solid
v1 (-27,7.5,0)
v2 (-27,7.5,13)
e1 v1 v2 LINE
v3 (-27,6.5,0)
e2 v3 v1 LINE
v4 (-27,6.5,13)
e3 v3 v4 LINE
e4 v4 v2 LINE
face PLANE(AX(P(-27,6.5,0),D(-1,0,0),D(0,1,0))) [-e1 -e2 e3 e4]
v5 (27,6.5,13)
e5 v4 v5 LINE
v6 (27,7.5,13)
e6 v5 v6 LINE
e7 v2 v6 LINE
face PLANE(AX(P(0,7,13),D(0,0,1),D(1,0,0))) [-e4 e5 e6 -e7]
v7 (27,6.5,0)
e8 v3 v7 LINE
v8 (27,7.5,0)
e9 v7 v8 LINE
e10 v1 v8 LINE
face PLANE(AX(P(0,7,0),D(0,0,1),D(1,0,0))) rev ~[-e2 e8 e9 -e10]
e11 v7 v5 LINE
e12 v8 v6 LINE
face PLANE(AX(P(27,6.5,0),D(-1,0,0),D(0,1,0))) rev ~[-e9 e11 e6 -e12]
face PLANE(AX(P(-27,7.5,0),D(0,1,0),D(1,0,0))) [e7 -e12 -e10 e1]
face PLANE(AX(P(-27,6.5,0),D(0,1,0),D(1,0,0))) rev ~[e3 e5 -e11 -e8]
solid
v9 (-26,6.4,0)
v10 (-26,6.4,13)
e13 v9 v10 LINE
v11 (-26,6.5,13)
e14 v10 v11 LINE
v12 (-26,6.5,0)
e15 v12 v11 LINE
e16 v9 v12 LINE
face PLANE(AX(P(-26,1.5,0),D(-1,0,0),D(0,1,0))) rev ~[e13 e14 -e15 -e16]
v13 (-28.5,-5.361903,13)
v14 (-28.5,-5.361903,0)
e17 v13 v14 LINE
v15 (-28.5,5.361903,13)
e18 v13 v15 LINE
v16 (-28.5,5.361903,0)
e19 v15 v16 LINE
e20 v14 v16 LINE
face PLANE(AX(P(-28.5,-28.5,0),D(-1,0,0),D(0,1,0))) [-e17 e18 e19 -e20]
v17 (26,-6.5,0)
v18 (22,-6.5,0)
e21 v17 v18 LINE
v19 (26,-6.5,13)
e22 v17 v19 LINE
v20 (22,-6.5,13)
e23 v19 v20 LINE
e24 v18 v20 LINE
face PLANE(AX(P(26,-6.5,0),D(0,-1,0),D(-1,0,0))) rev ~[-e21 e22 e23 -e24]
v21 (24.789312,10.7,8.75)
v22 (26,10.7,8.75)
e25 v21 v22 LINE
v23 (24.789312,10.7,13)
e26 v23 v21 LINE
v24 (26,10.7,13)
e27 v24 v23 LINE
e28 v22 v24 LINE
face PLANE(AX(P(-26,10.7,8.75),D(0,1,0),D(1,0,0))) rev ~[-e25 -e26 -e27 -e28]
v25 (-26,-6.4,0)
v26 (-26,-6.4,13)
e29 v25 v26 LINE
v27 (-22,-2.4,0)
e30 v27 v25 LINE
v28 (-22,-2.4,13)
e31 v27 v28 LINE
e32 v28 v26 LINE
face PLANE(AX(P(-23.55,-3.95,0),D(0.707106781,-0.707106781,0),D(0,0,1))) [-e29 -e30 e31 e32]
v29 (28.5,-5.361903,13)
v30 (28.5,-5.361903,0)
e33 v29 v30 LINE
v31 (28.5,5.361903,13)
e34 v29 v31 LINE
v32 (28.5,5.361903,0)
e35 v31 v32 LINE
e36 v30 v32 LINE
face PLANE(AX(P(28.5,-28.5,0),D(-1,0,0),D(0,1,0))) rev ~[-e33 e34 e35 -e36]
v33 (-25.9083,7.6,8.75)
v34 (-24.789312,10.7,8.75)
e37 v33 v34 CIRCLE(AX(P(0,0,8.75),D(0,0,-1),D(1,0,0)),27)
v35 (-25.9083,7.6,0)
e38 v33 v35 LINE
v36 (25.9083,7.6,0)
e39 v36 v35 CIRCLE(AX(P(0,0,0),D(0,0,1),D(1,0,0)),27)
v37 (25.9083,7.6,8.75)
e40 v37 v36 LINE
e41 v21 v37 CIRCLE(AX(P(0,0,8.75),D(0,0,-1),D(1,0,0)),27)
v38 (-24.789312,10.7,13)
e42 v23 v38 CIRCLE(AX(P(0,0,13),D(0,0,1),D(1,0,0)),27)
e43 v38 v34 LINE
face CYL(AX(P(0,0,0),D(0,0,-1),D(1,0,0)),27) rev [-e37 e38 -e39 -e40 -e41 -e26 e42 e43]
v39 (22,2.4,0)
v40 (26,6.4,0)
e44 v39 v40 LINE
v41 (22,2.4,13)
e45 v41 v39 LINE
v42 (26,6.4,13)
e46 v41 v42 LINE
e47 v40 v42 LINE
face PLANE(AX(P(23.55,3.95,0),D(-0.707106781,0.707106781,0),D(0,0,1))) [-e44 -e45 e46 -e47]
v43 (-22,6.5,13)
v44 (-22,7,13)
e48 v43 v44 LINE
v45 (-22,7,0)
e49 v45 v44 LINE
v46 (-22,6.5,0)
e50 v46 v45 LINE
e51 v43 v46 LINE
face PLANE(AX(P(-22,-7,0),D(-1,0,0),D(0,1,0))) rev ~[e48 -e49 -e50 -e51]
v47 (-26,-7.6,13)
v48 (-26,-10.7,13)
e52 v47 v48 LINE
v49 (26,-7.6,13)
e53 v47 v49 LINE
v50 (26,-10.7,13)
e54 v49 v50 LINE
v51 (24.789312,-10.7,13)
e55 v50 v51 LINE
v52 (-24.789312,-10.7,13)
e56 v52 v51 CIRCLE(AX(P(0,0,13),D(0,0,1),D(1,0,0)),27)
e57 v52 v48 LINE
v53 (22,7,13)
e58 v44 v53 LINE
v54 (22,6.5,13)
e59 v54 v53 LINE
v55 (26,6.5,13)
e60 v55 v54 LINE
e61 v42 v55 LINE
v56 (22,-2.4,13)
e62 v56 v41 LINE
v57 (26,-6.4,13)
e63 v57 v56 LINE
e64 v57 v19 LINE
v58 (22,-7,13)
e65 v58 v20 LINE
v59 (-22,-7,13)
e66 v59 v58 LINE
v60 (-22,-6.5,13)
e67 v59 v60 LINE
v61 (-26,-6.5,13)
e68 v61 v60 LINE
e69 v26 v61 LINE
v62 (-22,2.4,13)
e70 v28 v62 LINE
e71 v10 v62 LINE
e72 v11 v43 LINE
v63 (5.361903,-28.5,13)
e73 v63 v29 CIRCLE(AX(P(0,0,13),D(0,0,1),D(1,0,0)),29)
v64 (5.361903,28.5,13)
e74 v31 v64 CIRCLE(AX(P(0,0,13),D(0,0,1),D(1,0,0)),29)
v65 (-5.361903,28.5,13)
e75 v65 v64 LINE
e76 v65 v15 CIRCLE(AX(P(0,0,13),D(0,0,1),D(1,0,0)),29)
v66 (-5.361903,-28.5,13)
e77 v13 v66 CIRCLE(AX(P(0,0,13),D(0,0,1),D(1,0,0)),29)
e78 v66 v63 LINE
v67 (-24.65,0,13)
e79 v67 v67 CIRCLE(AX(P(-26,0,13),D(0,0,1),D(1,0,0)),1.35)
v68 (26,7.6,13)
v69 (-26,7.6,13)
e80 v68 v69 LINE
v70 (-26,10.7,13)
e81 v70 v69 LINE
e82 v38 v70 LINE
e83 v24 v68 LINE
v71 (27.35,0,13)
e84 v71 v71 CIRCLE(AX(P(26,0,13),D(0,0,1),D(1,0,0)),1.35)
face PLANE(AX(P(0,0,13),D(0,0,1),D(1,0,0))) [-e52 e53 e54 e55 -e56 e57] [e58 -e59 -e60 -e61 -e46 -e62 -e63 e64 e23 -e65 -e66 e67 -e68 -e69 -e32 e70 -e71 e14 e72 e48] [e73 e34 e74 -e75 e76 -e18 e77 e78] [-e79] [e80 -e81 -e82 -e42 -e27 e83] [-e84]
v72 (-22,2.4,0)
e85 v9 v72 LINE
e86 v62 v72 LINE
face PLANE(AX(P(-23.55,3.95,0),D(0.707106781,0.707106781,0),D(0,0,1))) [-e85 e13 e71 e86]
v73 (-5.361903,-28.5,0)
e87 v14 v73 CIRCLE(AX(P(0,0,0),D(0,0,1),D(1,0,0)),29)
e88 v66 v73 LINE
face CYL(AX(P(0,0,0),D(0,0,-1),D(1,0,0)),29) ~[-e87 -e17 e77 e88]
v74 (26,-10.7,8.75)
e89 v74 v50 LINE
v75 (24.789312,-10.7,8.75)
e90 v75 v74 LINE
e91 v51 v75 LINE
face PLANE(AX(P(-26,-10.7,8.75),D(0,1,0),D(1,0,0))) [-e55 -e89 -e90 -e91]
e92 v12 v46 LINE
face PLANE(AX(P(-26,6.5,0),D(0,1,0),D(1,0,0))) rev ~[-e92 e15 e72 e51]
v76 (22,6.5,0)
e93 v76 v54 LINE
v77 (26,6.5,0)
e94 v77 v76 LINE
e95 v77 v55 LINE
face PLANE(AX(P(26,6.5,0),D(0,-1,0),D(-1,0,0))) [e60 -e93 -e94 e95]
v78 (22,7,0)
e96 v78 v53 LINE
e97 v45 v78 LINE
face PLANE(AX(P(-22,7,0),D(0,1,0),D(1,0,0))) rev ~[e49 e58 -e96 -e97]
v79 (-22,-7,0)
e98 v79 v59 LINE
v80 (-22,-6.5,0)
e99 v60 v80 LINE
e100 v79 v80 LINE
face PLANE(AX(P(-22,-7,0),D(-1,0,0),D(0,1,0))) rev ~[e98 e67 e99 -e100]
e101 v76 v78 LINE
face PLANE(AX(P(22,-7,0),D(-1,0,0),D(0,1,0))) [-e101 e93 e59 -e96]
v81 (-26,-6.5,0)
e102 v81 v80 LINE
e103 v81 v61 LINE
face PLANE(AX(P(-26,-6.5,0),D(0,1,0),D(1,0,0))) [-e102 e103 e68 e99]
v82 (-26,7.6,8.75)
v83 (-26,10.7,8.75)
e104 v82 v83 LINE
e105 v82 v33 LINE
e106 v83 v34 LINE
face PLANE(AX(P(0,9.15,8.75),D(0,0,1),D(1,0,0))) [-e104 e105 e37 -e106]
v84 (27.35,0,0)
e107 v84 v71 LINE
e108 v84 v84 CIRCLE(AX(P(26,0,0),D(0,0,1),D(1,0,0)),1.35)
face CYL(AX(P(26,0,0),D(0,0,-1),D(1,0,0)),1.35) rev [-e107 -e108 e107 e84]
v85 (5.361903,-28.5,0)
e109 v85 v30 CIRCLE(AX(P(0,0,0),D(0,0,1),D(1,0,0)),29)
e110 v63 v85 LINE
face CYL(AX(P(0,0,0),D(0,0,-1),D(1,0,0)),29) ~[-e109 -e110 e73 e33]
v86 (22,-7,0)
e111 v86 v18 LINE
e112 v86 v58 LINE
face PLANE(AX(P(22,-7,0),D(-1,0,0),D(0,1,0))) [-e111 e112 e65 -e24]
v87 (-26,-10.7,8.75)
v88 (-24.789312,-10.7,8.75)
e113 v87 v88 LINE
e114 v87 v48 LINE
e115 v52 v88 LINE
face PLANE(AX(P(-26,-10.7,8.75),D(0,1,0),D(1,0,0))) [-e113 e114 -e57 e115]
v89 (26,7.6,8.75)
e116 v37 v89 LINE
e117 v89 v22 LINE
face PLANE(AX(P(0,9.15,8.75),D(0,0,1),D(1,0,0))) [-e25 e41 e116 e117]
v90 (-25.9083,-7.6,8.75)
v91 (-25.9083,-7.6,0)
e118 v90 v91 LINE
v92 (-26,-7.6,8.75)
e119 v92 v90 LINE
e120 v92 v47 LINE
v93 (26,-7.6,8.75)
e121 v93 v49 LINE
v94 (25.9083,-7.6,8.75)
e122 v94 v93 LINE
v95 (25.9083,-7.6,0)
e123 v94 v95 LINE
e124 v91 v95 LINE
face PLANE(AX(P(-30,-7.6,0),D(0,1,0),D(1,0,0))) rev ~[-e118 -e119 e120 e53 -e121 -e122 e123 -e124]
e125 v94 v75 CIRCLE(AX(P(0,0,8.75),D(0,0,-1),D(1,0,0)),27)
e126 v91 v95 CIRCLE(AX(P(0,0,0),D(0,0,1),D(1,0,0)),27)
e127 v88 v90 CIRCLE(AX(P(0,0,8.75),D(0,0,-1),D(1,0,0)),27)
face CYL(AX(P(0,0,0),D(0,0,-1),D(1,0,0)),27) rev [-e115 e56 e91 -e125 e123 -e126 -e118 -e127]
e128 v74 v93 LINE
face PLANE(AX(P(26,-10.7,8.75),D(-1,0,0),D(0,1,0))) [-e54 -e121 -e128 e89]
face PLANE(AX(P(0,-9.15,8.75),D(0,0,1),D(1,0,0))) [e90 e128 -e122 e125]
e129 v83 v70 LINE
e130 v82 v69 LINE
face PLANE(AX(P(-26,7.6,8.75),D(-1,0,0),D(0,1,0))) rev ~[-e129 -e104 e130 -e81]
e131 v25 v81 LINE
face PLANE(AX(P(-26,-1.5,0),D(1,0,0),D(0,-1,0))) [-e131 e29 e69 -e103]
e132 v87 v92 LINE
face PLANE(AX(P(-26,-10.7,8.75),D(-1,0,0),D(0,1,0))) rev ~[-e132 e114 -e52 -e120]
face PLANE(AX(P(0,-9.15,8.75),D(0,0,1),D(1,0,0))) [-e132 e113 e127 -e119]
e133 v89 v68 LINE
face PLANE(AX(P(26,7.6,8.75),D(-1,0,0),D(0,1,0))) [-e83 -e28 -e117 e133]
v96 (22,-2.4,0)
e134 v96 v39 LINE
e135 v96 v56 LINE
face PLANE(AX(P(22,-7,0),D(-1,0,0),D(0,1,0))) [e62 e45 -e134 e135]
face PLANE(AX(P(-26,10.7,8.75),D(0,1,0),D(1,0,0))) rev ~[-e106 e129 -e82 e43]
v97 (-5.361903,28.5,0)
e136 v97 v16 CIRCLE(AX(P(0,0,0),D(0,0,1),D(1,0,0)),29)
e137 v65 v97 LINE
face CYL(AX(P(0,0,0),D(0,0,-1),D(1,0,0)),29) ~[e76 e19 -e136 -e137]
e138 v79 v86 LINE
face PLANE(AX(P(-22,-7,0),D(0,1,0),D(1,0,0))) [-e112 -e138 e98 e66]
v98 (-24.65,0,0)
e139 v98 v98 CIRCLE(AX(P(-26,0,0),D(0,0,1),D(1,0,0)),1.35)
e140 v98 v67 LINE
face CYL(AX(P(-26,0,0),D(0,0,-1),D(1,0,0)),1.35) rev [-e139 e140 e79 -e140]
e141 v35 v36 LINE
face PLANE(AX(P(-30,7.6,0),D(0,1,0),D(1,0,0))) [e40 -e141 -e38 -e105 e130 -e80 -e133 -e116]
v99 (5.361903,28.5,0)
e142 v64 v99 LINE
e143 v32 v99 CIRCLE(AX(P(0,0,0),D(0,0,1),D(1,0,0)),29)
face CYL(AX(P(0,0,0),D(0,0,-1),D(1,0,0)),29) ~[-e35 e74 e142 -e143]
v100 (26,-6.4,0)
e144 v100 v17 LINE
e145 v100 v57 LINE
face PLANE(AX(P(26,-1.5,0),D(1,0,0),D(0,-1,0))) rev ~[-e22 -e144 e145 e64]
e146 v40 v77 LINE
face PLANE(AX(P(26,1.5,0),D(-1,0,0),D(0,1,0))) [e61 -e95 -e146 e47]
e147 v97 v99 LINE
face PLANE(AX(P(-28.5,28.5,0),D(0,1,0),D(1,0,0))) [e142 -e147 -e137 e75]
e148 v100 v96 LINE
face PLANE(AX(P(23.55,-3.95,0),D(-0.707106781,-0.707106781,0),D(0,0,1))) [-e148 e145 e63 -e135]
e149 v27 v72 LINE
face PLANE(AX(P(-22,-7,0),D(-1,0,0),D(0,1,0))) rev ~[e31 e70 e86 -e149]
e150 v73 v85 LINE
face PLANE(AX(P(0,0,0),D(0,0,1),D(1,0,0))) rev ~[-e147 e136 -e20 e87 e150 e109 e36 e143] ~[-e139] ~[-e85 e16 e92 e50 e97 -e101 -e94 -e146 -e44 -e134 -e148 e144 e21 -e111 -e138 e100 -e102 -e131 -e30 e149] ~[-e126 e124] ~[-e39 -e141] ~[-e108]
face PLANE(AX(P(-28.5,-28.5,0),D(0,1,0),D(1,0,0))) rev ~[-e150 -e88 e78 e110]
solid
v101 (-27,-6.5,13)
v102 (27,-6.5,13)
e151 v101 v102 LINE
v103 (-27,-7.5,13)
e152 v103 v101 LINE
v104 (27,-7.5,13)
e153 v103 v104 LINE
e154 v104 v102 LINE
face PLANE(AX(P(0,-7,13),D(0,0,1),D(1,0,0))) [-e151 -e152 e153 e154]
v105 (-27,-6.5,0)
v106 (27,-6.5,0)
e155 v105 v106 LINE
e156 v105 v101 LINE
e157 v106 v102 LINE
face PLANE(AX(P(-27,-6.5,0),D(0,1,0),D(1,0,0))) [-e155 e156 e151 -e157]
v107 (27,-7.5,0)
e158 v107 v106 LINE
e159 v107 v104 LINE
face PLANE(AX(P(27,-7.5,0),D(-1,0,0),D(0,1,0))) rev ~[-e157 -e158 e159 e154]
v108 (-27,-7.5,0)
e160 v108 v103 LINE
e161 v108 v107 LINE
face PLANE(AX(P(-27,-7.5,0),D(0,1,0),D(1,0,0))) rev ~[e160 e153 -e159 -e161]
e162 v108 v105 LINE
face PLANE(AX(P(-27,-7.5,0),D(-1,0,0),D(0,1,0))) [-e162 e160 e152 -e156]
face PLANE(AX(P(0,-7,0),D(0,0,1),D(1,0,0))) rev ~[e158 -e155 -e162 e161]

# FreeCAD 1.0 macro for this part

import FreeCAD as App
import Part
import Sketcher


def edges_at(feature, points):
    """Names of the edges that pass closest to the given points."""
    edges = feature.Shape.Edges
    near = lambda p: min(range(len(edges)), key=lambda i: edges[i].distToShape(Part.Vertex(*p))[0])
    return sorted({f"Edge{near(p) + 1}" for p in points})

doc = App.newDocument("Part")
body = doc.addObject("PartDesign::Body", "Body")

# Sketch on XY plane
sketch1 = body.newObject("Sketcher::SketchObject", "Sketch")
sketch1.AttachmentSupport = (doc.getObject("XY_Plane"), [""])
sketch1.MapMode = "FlatFace"
sketch1.addGeometry(Part.LineSegment(App.Vector(-27, 7.5, 0), App.Vector(-27, 6.5, 0)), False)
sketch1.addGeometry(Part.LineSegment(App.Vector(-27, 6.5, 0), App.Vector(27, 6.5, 0)), False)
sketch1.addGeometry(Part.LineSegment(App.Vector(27, 6.5, 0), App.Vector(27, 7.5, 0)), False)
sketch1.addGeometry(Part.LineSegment(App.Vector(27, 7.5, 0), App.Vector(-27, 7.5, 0)), False)
sketch1.addConstraint(Sketcher.Constraint("Coincident", 0, 2, 1, 1))
sketch1.addConstraint(Sketcher.Constraint("Coincident", 1, 2, 2, 1))
sketch1.addConstraint(Sketcher.Constraint("Coincident", 2, 2, 3, 1))
sketch1.addConstraint(Sketcher.Constraint("Coincident", 3, 2, 0, 1))
sketch1.addConstraint(Sketcher.Constraint("Vertical", 0))
sketch1.addConstraint(Sketcher.Constraint("Horizontal", 1))
sketch1.addConstraint(Sketcher.Constraint("Vertical", 2))
sketch1.addConstraint(Sketcher.Constraint("Horizontal", 3))
sketch1.addConstraint(Sketcher.Constraint("DistanceX", 1, 1, 1, 2, 54.0))
sketch1.addConstraint(Sketcher.Constraint("DistanceY", 0, 2, 0, 1, 1.0))
sketch1.addConstraint(Sketcher.Constraint("DistanceX", 0, 2, -1, 1, 27.0))
sketch1.addConstraint(Sketcher.Constraint("DistanceY", -1, 1, 0, 2, 6.5))
pad1 = body.newObject("PartDesign::Pad", "Pad")
pad1.Profile = sketch1
pad1.Length = 13
body2 = doc.addObject("PartDesign::Body", "Body001")

# Sketch on XY plane
sketch2 = body2.newObject("Sketcher::SketchObject", "Sketch001")
sketch2.AttachmentSupport = (doc.getObject("XY_Plane001"), [""])
sketch2.MapMode = "FlatFace"
sketch2.addGeometry(Part.LineSegment(App.Vector(-27, -6.5, 0), App.Vector(-27, -7.5, 0)), False)
sketch2.addGeometry(Part.LineSegment(App.Vector(-27, -7.5, 0), App.Vector(27, -7.5, 0)), False)
sketch2.addGeometry(Part.LineSegment(App.Vector(27, -7.5, 0), App.Vector(27, -6.5, 0)), False)
sketch2.addGeometry(Part.LineSegment(App.Vector(27, -6.5, 0), App.Vector(-27, -6.5, 0)), False)
sketch2.addConstraint(Sketcher.Constraint("Coincident", 0, 2, 1, 1))
sketch2.addConstraint(Sketcher.Constraint("Coincident", 1, 2, 2, 1))
sketch2.addConstraint(Sketcher.Constraint("Coincident", 2, 2, 3, 1))
sketch2.addConstraint(Sketcher.Constraint("Coincident", 3, 2, 0, 1))
sketch2.addConstraint(Sketcher.Constraint("Vertical", 0))
sketch2.addConstraint(Sketcher.Constraint("Horizontal", 1))
sketch2.addConstraint(Sketcher.Constraint("Vertical", 2))
sketch2.addConstraint(Sketcher.Constraint("Horizontal", 3))
sketch2.addConstraint(Sketcher.Constraint("DistanceX", 1, 1, 1, 2, 54.0))
sketch2.addConstraint(Sketcher.Constraint("DistanceY", 0, 2, 0, 1, 1.0))
sketch2.addConstraint(Sketcher.Constraint("DistanceX", 0, 2, -1, 1, 27.0))
sketch2.addConstraint(Sketcher.Constraint("DistanceY", 0, 2, -1, 1, 7.5))
pad2 = body2.newObject("PartDesign::Pad", "Pad001")
pad2.Profile = sketch2
pad2.Length = 13
body3 = doc.addObject("PartDesign::Body", "Body002")

# Sketch on XY plane
sketch3 = body3.newObject("Sketcher::SketchObject", "Sketch002")
sketch3.AttachmentSupport = (doc.getObject("XY_Plane002"), [""])
sketch3.MapMode = "FlatFace"
sketch3.addGeometry(Part.LineSegment(App.Vector(0, 5, 0), App.Vector(0, 0, 0)), False)
sketch3.addGeometry(Part.LineSegment(App.Vector(0, 0, 0), App.Vector(5, 0, 0)), False)
sketch3.addGeometry(Part.LineSegment(App.Vector(5, 0, 0), App.Vector(5, 5, 0)), False)
sketch3.addGeometry(Part.LineSegment(App.Vector(5, 5, 0), App.Vector(0, 5, 0)), False)
sketch3.addConstraint(Sketcher.Constraint("Coincident", 0, 2, 1, 1))
sketch3.addConstraint(Sketcher.Constraint("Coincident", 1, 2, 2, 1))
sketch3.addConstraint(Sketcher.Constraint("Coincident", 2, 2, 3, 1))
sketch3.addConstraint(Sketcher.Constraint("Coincident", 3, 2, 0, 1))
sketch3.addConstraint(Sketcher.Constraint("Vertical", 0))
sketch3.addConstraint(Sketcher.Constraint("Horizontal", 1))
sketch3.addConstraint(Sketcher.Constraint("Vertical", 2))
sketch3.addConstraint(Sketcher.Constraint("Horizontal", 3))
sketch3.addConstraint(Sketcher.Constraint("Coincident", 0, 2, -1, 1))
sketch3.addConstraint(Sketcher.Constraint("Equal", 3, 0))
sketch3.addConstraint(Sketcher.Constraint("DistanceX", 1, 1, 1, 2, 5.0))
pad3 = body3.newObject("PartDesign::Pad", "Pad002")
pad3.Profile = sketch3
pad3.Length = 13
doc.recompute()

chamfer = body3.newObject("PartDesign::Chamfer", "Chamfer")
chamfer.Base = (pad3, edges_at(pad3, [(0, 0, 6.5)]))
chamfer.Size = 4.9
body4 = doc.addObject("PartDesign::Body", "Body003")
doc.recompute()

body3.Placement = App.Placement(App.Vector(-26, -1.5, 0), App.Rotation(App.Vector(0, 0, 1), 270))
boolean = body4.newObject("PartDesign::Boolean", "Boolean")
boolean.Type = "Fuse"
boolean.addObjects([body3])
body5 = doc.addObject("PartDesign::Body", "Body004")

# Sketch on XY plane
sketch4 = body5.newObject("Sketcher::SketchObject", "Sketch003")
sketch4.AttachmentSupport = (doc.getObject("XY_Plane004"), [""])
sketch4.MapMode = "FlatFace"
sketch4.addGeometry(Part.LineSegment(App.Vector(0, 5, 0), App.Vector(0, 0, 0)), False)
sketch4.addGeometry(Part.LineSegment(App.Vector(0, 0, 0), App.Vector(5, 0, 0)), False)
sketch4.addGeometry(Part.LineSegment(App.Vector(5, 0, 0), App.Vector(5, 5, 0)), False)
sketch4.addGeometry(Part.LineSegment(App.Vector(5, 5, 0), App.Vector(0, 5, 0)), False)
sketch4.addConstraint(Sketcher.Constraint("Coincident", 0, 2, 1, 1))
sketch4.addConstraint(Sketcher.Constraint("Coincident", 1, 2, 2, 1))
sketch4.addConstraint(Sketcher.Constraint("Coincident", 2, 2, 3, 1))
sketch4.addConstraint(Sketcher.Constraint("Coincident", 3, 2, 0, 1))
sketch4.addConstraint(Sketcher.Constraint("Vertical", 0))
sketch4.addConstraint(Sketcher.Constraint("Horizontal", 1))
sketch4.addConstraint(Sketcher.Constraint("Vertical", 2))
sketch4.addConstraint(Sketcher.Constraint("Horizontal", 3))
sketch4.addConstraint(Sketcher.Constraint("Coincident", 0, 2, -1, 1))
sketch4.addConstraint(Sketcher.Constraint("Equal", 3, 0))
sketch4.addConstraint(Sketcher.Constraint("DistanceX", 1, 1, 1, 2, 5.0))
pad4 = body5.newObject("PartDesign::Pad", "Pad003")
pad4.Profile = sketch4
pad4.Length = 13
doc.recompute()

chamfer2 = body5.newObject("PartDesign::Chamfer", "Chamfer001")
chamfer2.Base = (pad4, edges_at(pad4, [(0, 0, 6.5)]))
chamfer2.Size = 4.9
body6 = doc.addObject("PartDesign::Body", "Body005")
doc.recompute()

body5.Placement = App.Placement(App.Vector(26, -1.5, 0), App.Rotation(App.Vector(0, 0, 1), 180))
boolean2 = body6.newObject("PartDesign::Boolean", "Boolean001")
boolean2.Type = "Fuse"
boolean2.addObjects([body5])
body7 = doc.addObject("PartDesign::Body", "Body006")

# Sketch on XY plane
sketch5 = body7.newObject("Sketcher::SketchObject", "Sketch004")
sketch5.AttachmentSupport = (doc.getObject("XY_Plane006"), [""])
sketch5.MapMode = "FlatFace"
sketch5.addGeometry(Part.LineSegment(App.Vector(0, 5, 0), App.Vector(0, 0, 0)), False)
sketch5.addGeometry(Part.LineSegment(App.Vector(0, 0, 0), App.Vector(5, 0, 0)), False)
sketch5.addGeometry(Part.LineSegment(App.Vector(5, 0, 0), App.Vector(5, 5, 0)), False)
sketch5.addGeometry(Part.LineSegment(App.Vector(5, 5, 0), App.Vector(0, 5, 0)), False)
sketch5.addConstraint(Sketcher.Constraint("Coincident", 0, 2, 1, 1))
sketch5.addConstraint(Sketcher.Constraint("Coincident", 1, 2, 2, 1))
sketch5.addConstraint(Sketcher.Constraint("Coincident", 2, 2, 3, 1))
sketch5.addConstraint(Sketcher.Constraint("Coincident", 3, 2, 0, 1))
sketch5.addConstraint(Sketcher.Constraint("Vertical", 0))
sketch5.addConstraint(Sketcher.Constraint("Horizontal", 1))
sketch5.addConstraint(Sketcher.Constraint("Vertical", 2))
sketch5.addConstraint(Sketcher.Constraint("Horizontal", 3))
sketch5.addConstraint(Sketcher.Constraint("Coincident", 0, 2, -1, 1))
sketch5.addConstraint(Sketcher.Constraint("Equal", 3, 0))
sketch5.addConstraint(Sketcher.Constraint("DistanceX", 1, 1, 1, 2, 5.0))
pad5 = body7.newObject("PartDesign::Pad", "Pad004")
pad5.Profile = sketch5
pad5.Length = 13
doc.recompute()

chamfer3 = body7.newObject("PartDesign::Chamfer", "Chamfer002")
chamfer3.Base = (pad5, edges_at(pad5, [(0, 0, 6.5)]))
chamfer3.Size = 4.9
body8 = doc.addObject("PartDesign::Body", "Body007")
doc.recompute()

body7.Placement = App.Placement(App.Vector(26, 1.5, 0), App.Rotation(App.Vector(0, 0, 1), 90))
boolean3 = body8.newObject("PartDesign::Boolean", "Boolean002")
boolean3.Type = "Fuse"
boolean3.addObjects([body7])
body9 = doc.addObject("PartDesign::Body", "Body008")

# Sketch on XY plane
sketch6 = body9.newObject("Sketcher::SketchObject", "Sketch005")
sketch6.AttachmentSupport = (doc.getObject("XY_Plane008"), [""])
sketch6.MapMode = "FlatFace"
sketch6.addGeometry(Part.LineSegment(App.Vector(0, 5, 0), App.Vector(0, 0, 0)), False)
sketch6.addGeometry(Part.LineSegment(App.Vector(0, 0, 0), App.Vector(5, 0, 0)), False)
sketch6.addGeometry(Part.LineSegment(App.Vector(5, 0, 0), App.Vector(5, 5, 0)), False)
sketch6.addGeometry(Part.LineSegment(App.Vector(5, 5, 0), App.Vector(0, 5, 0)), False)
sketch6.addConstraint(Sketcher.Constraint("Coincident", 0, 2, 1, 1))
sketch6.addConstraint(Sketcher.Constraint("Coincident", 1, 2, 2, 1))
sketch6.addConstraint(Sketcher.Constraint("Coincident", 2, 2, 3, 1))
sketch6.addConstraint(Sketcher.Constraint("Coincident", 3, 2, 0, 1))
sketch6.addConstraint(Sketcher.Constraint("Vertical", 0))
sketch6.addConstraint(Sketcher.Constraint("Horizontal", 1))
sketch6.addConstraint(Sketcher.Constraint("Vertical", 2))
sketch6.addConstraint(Sketcher.Constraint("Horizontal", 3))
sketch6.addConstraint(Sketcher.Constraint("Coincident", 0, 2, -1, 1))
sketch6.addConstraint(Sketcher.Constraint("Equal", 3, 0))
sketch6.addConstraint(Sketcher.Constraint("DistanceX", 1, 1, 1, 2, 5.0))
pad6 = body9.newObject("PartDesign::Pad", "Pad005")
pad6.Profile = sketch6
pad6.Length = 13
doc.recompute()

chamfer4 = body9.newObject("PartDesign::Chamfer", "Chamfer003")
chamfer4.Base = (pad6, edges_at(pad6, [(0, 0, 6.5)]))
chamfer4.Size = 4.9
body10 = doc.addObject("PartDesign::Body", "Body009")
doc.recompute()

body9.Placement = App.Placement(App.Vector(-26, 1.5, 0), App.Rotation(App.Vector(0, 0, 1), 0))
boolean4 = body10.newObject("PartDesign::Boolean", "Boolean003")
boolean4.Type = "Fuse"
boolean4.addObjects([body9])
body11 = doc.addObject("PartDesign::Body", "Body010")

# Sketch on XY plane
sketch7 = body11.newObject("Sketcher::SketchObject", "Sketch006")
sketch7.AttachmentSupport = (doc.getObject("XY_Plane010"), [""])
sketch7.MapMode = "FlatFace"
sketch7.addGeometry(Part.LineSegment(App.Vector(-22, 7, 0), App.Vector(-22, -7, 0)), False)
sketch7.addGeometry(Part.LineSegment(App.Vector(-22, -7, 0), App.Vector(22, -7, 0)), False)
sketch7.addGeometry(Part.LineSegment(App.Vector(22, -7, 0), App.Vector(22, 7, 0)), False)
sketch7.addGeometry(Part.LineSegment(App.Vector(22, 7, 0), App.Vector(-22, 7, 0)), False)
sketch7.addConstraint(Sketcher.Constraint("Coincident", 0, 2, 1, 1))
sketch7.addConstraint(Sketcher.Constraint("Coincident", 1, 2, 2, 1))
sketch7.addConstraint(Sketcher.Constraint("Coincident", 2, 2, 3, 1))
sketch7.addConstraint(Sketcher.Constraint("Coincident", 3, 2, 0, 1))
sketch7.addConstraint(Sketcher.Constraint("Vertical", 0))
sketch7.addConstraint(Sketcher.Constraint("Horizontal", 1))
sketch7.addConstraint(Sketcher.Constraint("Vertical", 2))
sketch7.addConstraint(Sketcher.Constraint("Horizontal", 3))
sketch7.addConstraint(Sketcher.Constraint("Symmetric", 0, 2, 2, 2, -1, 1))
sketch7.addConstraint(Sketcher.Constraint("DistanceX", 1, 1, 1, 2, 44.0))
sketch7.addConstraint(Sketcher.Constraint("DistanceY", 0, 2, 0, 1, 14.0))
pad7 = body11.newObject("PartDesign::Pad", "Pad006")
pad7.Profile = sketch7
pad7.Length = 13
body12 = doc.addObject("PartDesign::Body", "Body011")

# Sketch on XY plane
sketch8 = body12.newObject("Sketcher::SketchObject", "Sketch007")
sketch8.AttachmentSupport = (doc.getObject("XY_Plane011"), [""])
sketch8.MapMode = "FlatFace"
sketch8.AttachmentOffset = App.Placement(App.Vector(0, 0, 8.75), App.Rotation())
sketch8.addGeometry(Part.LineSegment(App.Vector(-26, -7.6, 0), App.Vector(-26, -10.7, 0)), False)
sketch8.addGeometry(Part.LineSegment(App.Vector(-26, -10.7, 0), App.Vector(26, -10.7, 0)), False)
sketch8.addGeometry(Part.LineSegment(App.Vector(26, -10.7, 0), App.Vector(26, -7.6, 0)), False)
sketch8.addGeometry(Part.LineSegment(App.Vector(26, -7.6, 0), App.Vector(-26, -7.6, 0)), False)
sketch8.addConstraint(Sketcher.Constraint("Coincident", 0, 2, 1, 1))
sketch8.addConstraint(Sketcher.Constraint("Coincident", 1, 2, 2, 1))
sketch8.addConstraint(Sketcher.Constraint("Coincident", 2, 2, 3, 1))
sketch8.addConstraint(Sketcher.Constraint("Coincident", 3, 2, 0, 1))
sketch8.addConstraint(Sketcher.Constraint("Vertical", 0))
sketch8.addConstraint(Sketcher.Constraint("Horizontal", 1))
sketch8.addConstraint(Sketcher.Constraint("Vertical", 2))
sketch8.addConstraint(Sketcher.Constraint("Horizontal", 3))
sketch8.addConstraint(Sketcher.Constraint("DistanceX", 1, 1, 1, 2, 52.0))
sketch8.addConstraint(Sketcher.Constraint("DistanceY", 0, 2, 0, 1, 3.1))
sketch8.addConstraint(Sketcher.Constraint("DistanceX", 0, 2, -1, 1, 26.0))
sketch8.addConstraint(Sketcher.Constraint("DistanceY", 0, 2, -1, 1, 10.7))
pad8 = body12.newObject("PartDesign::Pad", "Pad007")
pad8.Profile = sketch8
pad8.Length = 4.3
body13 = doc.addObject("PartDesign::Body", "Body012")

# Sketch on XY plane
sketch9 = body13.newObject("Sketcher::SketchObject", "Sketch008")
sketch9.AttachmentSupport = (doc.getObject("XY_Plane012"), [""])
sketch9.MapMode = "FlatFace"
sketch9.AttachmentOffset = App.Placement(App.Vector(0, 0, 8.75), App.Rotation())
sketch9.addGeometry(Part.LineSegment(App.Vector(-26, 10.7, 0), App.Vector(-26, 7.6, 0)), False)
sketch9.addGeometry(Part.LineSegment(App.Vector(-26, 7.6, 0), App.Vector(26, 7.6, 0)), False)
sketch9.addGeometry(Part.LineSegment(App.Vector(26, 7.6, 0), App.Vector(26, 10.7, 0)), False)
sketch9.addGeometry(Part.LineSegment(App.Vector(26, 10.7, 0), App.Vector(-26, 10.7, 0)), False)
sketch9.addConstraint(Sketcher.Constraint("Coincident", 0, 2, 1, 1))
sketch9.addConstraint(Sketcher.Constraint("Coincident", 1, 2, 2, 1))
sketch9.addConstraint(Sketcher.Constraint("Coincident", 2, 2, 3, 1))
sketch9.addConstraint(Sketcher.Constraint("Coincident", 3, 2, 0, 1))
sketch9.addConstraint(Sketcher.Constraint("Vertical", 0))
sketch9.addConstraint(Sketcher.Constraint("Horizontal", 1))
sketch9.addConstraint(Sketcher.Constraint("Vertical", 2))
sketch9.addConstraint(Sketcher.Constraint("Horizontal", 3))
sketch9.addConstraint(Sketcher.Constraint("DistanceX", 1, 1, 1, 2, 52.0))
sketch9.addConstraint(Sketcher.Constraint("DistanceY", 0, 2, 0, 1, 3.1))
sketch9.addConstraint(Sketcher.Constraint("DistanceX", 0, 2, -1, 1, 26.0))
sketch9.addConstraint(Sketcher.Constraint("DistanceY", -1, 1, 0, 2, 7.6))
pad9 = body13.newObject("PartDesign::Pad", "Pad008")
pad9.Profile = sketch9
pad9.Length = 4.3
body14 = doc.addObject("PartDesign::Body", "Body013")

# Sketch on XY plane
sketch10 = body14.newObject("Sketcher::SketchObject", "Sketch009")
sketch10.AttachmentSupport = (doc.getObject("XY_Plane013"), [""])
sketch10.MapMode = "FlatFace"
sketch10.addGeometry(Part.LineSegment(App.Vector(-30, 7.6, 0), App.Vector(-30, -52.4, 0)), False)
sketch10.addGeometry(Part.LineSegment(App.Vector(-30, -52.4, 0), App.Vector(30, -52.4, 0)), False)
sketch10.addGeometry(Part.LineSegment(App.Vector(30, -52.4, 0), App.Vector(30, 7.6, 0)), False)
sketch10.addGeometry(Part.LineSegment(App.Vector(30, 7.6, 0), App.Vector(-30, 7.6, 0)), False)
sketch10.addConstraint(Sketcher.Constraint("Coincident", 0, 2, 1, 1))
sketch10.addConstraint(Sketcher.Constraint("Coincident", 1, 2, 2, 1))
sketch10.addConstraint(Sketcher.Constraint("Coincident", 2, 2, 3, 1))
sketch10.addConstraint(Sketcher.Constraint("Coincident", 3, 2, 0, 1))
sketch10.addConstraint(Sketcher.Constraint("Vertical", 0))
sketch10.addConstraint(Sketcher.Constraint("Horizontal", 1))
sketch10.addConstraint(Sketcher.Constraint("Vertical", 2))
sketch10.addConstraint(Sketcher.Constraint("Horizontal", 3))
sketch10.addConstraint(Sketcher.Constraint("Equal", 3, 0))
sketch10.addConstraint(Sketcher.Constraint("DistanceX", 1, 1, 1, 2, 60.0))
sketch10.addConstraint(Sketcher.Constraint("DistanceX", 0, 2, -1, 1, 30.0))
sketch10.addConstraint(Sketcher.Constraint("DistanceY", 0, 2, -1, 1, 52.4))
pad10 = body14.newObject("PartDesign::Pad", "Pad009")
pad10.Profile = sketch10
pad10.Length = 13
body15 = doc.addObject("PartDesign::Body", "Body014")

# Sketch on XY plane
sketch11 = body15.newObject("Sketcher::SketchObject", "Sketch010")
sketch11.AttachmentSupport = (doc.getObject("XY_Plane014"), [""])
sketch11.MapMode = "FlatFace"
sketch11.addGeometry(Part.Circle(App.Vector(0, 0, 0), App.Vector(0, 0, 1), 27), False)
sketch11.addConstraint(Sketcher.Constraint("Coincident", 0, 3, -1, 1))
sketch11.addConstraint(Sketcher.Constraint("Diameter", 0, 54.0))
pad11 = body15.newObject("PartDesign::Pad", "Pad010")
pad11.Profile = sketch11
pad11.Length = 13
doc.recompute()

boolean5 = body15.newObject("PartDesign::Boolean", "Boolean004")
boolean5.Type = "Cut"
boolean5.addObjects([body14])
body16 = doc.addObject("PartDesign::Body", "Body015")

# Sketch on XY plane
sketch12 = body16.newObject("Sketcher::SketchObject", "Sketch011")
sketch12.AttachmentSupport = (doc.getObject("XY_Plane015"), [""])
sketch12.MapMode = "FlatFace"
sketch12.addGeometry(Part.LineSegment(App.Vector(-30, 52.4, 0), App.Vector(-30, -7.6, 0)), False)
sketch12.addGeometry(Part.LineSegment(App.Vector(-30, -7.6, 0), App.Vector(30, -7.6, 0)), False)
sketch12.addGeometry(Part.LineSegment(App.Vector(30, -7.6, 0), App.Vector(30, 52.4, 0)), False)
sketch12.addGeometry(Part.LineSegment(App.Vector(30, 52.4, 0), App.Vector(-30, 52.4, 0)), False)
sketch12.addConstraint(Sketcher.Constraint("Coincident", 0, 2, 1, 1))
sketch12.addConstraint(Sketcher.Constraint("Coincident", 1, 2, 2, 1))
sketch12.addConstraint(Sketcher.Constraint("Coincident", 2, 2, 3, 1))
sketch12.addConstraint(Sketcher.Constraint("Coincident", 3, 2, 0, 1))
sketch12.addConstraint(Sketcher.Constraint("Vertical", 0))
sketch12.addConstraint(Sketcher.Constraint("Horizontal", 1))
sketch12.addConstraint(Sketcher.Constraint("Vertical", 2))
sketch12.addConstraint(Sketcher.Constraint("Horizontal", 3))
sketch12.addConstraint(Sketcher.Constraint("Equal", 3, 0))
sketch12.addConstraint(Sketcher.Constraint("DistanceX", 1, 1, 1, 2, 60.0))
sketch12.addConstraint(Sketcher.Constraint("DistanceX", 0, 2, -1, 1, 30.0))
sketch12.addConstraint(Sketcher.Constraint("DistanceY", 0, 2, -1, 1, 7.6))
pad12 = body16.newObject("PartDesign::Pad", "Pad011")
pad12.Profile = sketch12
pad12.Length = 13
body17 = doc.addObject("PartDesign::Body", "Body016")

# Sketch on XY plane
sketch13 = body17.newObject("Sketcher::SketchObject", "Sketch012")
sketch13.AttachmentSupport = (doc.getObject("XY_Plane016"), [""])
sketch13.MapMode = "FlatFace"
sketch13.addGeometry(Part.Circle(App.Vector(0, 0, 0), App.Vector(0, 0, 1), 27), False)
sketch13.addConstraint(Sketcher.Constraint("Coincident", 0, 3, -1, 1))
sketch13.addConstraint(Sketcher.Constraint("Diameter", 0, 54.0))
pad13 = body17.newObject("PartDesign::Pad", "Pad012")
pad13.Profile = sketch13
pad13.Length = 13
doc.recompute()

boolean6 = body17.newObject("PartDesign::Boolean", "Boolean005")
boolean6.Type = "Cut"
boolean6.addObjects([body16])
body18 = doc.addObject("PartDesign::Body", "Body017")

# Sketch on XY plane
sketch14 = body18.newObject("Sketcher::SketchObject", "Sketch013")
sketch14.AttachmentSupport = (doc.getObject("XY_Plane017"), [""])
sketch14.MapMode = "FlatFace"
sketch14.addGeometry(Part.Circle(App.Vector(-26, 0, 0), App.Vector(0, 0, 1), 1.35), False)
sketch14.addConstraint(Sketcher.Constraint("PointOnObject", 0, 3, -1))
sketch14.addConstraint(Sketcher.Constraint("Diameter", 0, 2.7))
sketch14.addConstraint(Sketcher.Constraint("DistanceX", 0, 3, -1, 1, 26.0))
pad14 = body18.newObject("PartDesign::Pad", "Pad013")
pad14.Profile = sketch14
pad14.Length = 13
body19 = doc.addObject("PartDesign::Body", "Body018")

# Sketch on XY plane
sketch15 = body19.newObject("Sketcher::SketchObject", "Sketch014")
sketch15.AttachmentSupport = (doc.getObject("XY_Plane018"), [""])
sketch15.MapMode = "FlatFace"
sketch15.addGeometry(Part.Circle(App.Vector(26, 0, 0), App.Vector(0, 0, 1), 1.35), False)
sketch15.addConstraint(Sketcher.Constraint("PointOnObject", 0, 3, -1))
sketch15.addConstraint(Sketcher.Constraint("Diameter", 0, 2.7))
sketch15.addConstraint(Sketcher.Constraint("DistanceX", -1, 1, 0, 3, 26.0))
pad15 = body19.newObject("PartDesign::Pad", "Pad014")
pad15.Profile = sketch15
pad15.Length = 13
body20 = doc.addObject("PartDesign::Body", "Body019")

# Sketch on XY plane
sketch16 = body20.newObject("Sketcher::SketchObject", "Sketch015")
sketch16.AttachmentSupport = (doc.getObject("XY_Plane019"), [""])
sketch16.MapMode = "FlatFace"
sketch16.addGeometry(Part.LineSegment(App.Vector(-28.5, 28.5, 0), App.Vector(-28.5, -28.5, 0)), False)
sketch16.addGeometry(Part.LineSegment(App.Vector(-28.5, -28.5, 0), App.Vector(28.5, -28.5, 0)), False)
sketch16.addGeometry(Part.LineSegment(App.Vector(28.5, -28.5, 0), App.Vector(28.5, 28.5, 0)), False)
sketch16.addGeometry(Part.LineSegment(App.Vector(28.5, 28.5, 0), App.Vector(-28.5, 28.5, 0)), False)
sketch16.addConstraint(Sketcher.Constraint("Coincident", 0, 2, 1, 1))
sketch16.addConstraint(Sketcher.Constraint("Coincident", 1, 2, 2, 1))
sketch16.addConstraint(Sketcher.Constraint("Coincident", 2, 2, 3, 1))
sketch16.addConstraint(Sketcher.Constraint("Coincident", 3, 2, 0, 1))
sketch16.addConstraint(Sketcher.Constraint("Vertical", 0))
sketch16.addConstraint(Sketcher.Constraint("Horizontal", 1))
sketch16.addConstraint(Sketcher.Constraint("Vertical", 2))
sketch16.addConstraint(Sketcher.Constraint("Horizontal", 3))
sketch16.addConstraint(Sketcher.Constraint("Symmetric", 0, 2, 2, 2, -1, 1))
sketch16.addConstraint(Sketcher.Constraint("Equal", 3, 0))
sketch16.addConstraint(Sketcher.Constraint("DistanceX", 1, 1, 1, 2, 57.0))
pad16 = body20.newObject("PartDesign::Pad", "Pad015")
pad16.Profile = sketch16
pad16.Length = 13
body21 = doc.addObject("PartDesign::Body", "Body020")

# Sketch on XY plane
sketch17 = body21.newObject("Sketcher::SketchObject", "Sketch016")
sketch17.AttachmentSupport = (doc.getObject("XY_Plane020"), [""])
sketch17.MapMode = "FlatFace"
sketch17.addGeometry(Part.Circle(App.Vector(0, 0, 0), App.Vector(0, 0, 1), 29), False)
sketch17.addConstraint(Sketcher.Constraint("Coincident", 0, 3, -1, 1))
sketch17.addConstraint(Sketcher.Constraint("Diameter", 0, 58.0))
pad17 = body21.newObject("PartDesign::Pad", "Pad016")
pad17.Profile = sketch17
pad17.Length = 13
doc.recompute()

boolean7 = body21.newObject("PartDesign::Boolean", "Boolean006")
boolean7.Type = "Common"
boolean7.addObjects([body20])
doc.recompute()

boolean8 = body21.newObject("PartDesign::Boolean", "Boolean007")
boolean8.Type = "Cut"
boolean8.addObjects([body19])
doc.recompute()

boolean9 = body21.newObject("PartDesign::Boolean", "Boolean008")
boolean9.Type = "Cut"
boolean9.addObjects([body18])
doc.recompute()

boolean10 = body21.newObject("PartDesign::Boolean", "Boolean009")
boolean10.Type = "Cut"
boolean10.addObjects([body17])
doc.recompute()

boolean11 = body21.newObject("PartDesign::Boolean", "Boolean010")
boolean11.Type = "Cut"
boolean11.addObjects([body15])
doc.recompute()

boolean12 = body21.newObject("PartDesign::Boolean", "Boolean011")
boolean12.Type = "Cut"
boolean12.addObjects([body13])
doc.recompute()

boolean13 = body21.newObject("PartDesign::Boolean", "Boolean012")
boolean13.Type = "Cut"
boolean13.addObjects([body12])
doc.recompute()

boolean14 = body21.newObject("PartDesign::Boolean", "Boolean013")
boolean14.Type = "Cut"
boolean14.addObjects([body11])
doc.recompute()

boolean15 = body21.newObject("PartDesign::Boolean", "Boolean014")
boolean15.Type = "Cut"
boolean15.addObjects([body10])
doc.recompute()

boolean16 = body21.newObject("PartDesign::Boolean", "Boolean015")
boolean16.Type = "Cut"
boolean16.addObjects([body8])
doc.recompute()

boolean17 = body21.newObject("PartDesign::Boolean", "Boolean016")
boolean17.Type = "Cut"
boolean17.addObjects([body6])
doc.recompute()

boolean18 = body21.newObject("PartDesign::Boolean", "Boolean017")
boolean18.Type = "Cut"
boolean18.addObjects([body4])

doc.recompute()
